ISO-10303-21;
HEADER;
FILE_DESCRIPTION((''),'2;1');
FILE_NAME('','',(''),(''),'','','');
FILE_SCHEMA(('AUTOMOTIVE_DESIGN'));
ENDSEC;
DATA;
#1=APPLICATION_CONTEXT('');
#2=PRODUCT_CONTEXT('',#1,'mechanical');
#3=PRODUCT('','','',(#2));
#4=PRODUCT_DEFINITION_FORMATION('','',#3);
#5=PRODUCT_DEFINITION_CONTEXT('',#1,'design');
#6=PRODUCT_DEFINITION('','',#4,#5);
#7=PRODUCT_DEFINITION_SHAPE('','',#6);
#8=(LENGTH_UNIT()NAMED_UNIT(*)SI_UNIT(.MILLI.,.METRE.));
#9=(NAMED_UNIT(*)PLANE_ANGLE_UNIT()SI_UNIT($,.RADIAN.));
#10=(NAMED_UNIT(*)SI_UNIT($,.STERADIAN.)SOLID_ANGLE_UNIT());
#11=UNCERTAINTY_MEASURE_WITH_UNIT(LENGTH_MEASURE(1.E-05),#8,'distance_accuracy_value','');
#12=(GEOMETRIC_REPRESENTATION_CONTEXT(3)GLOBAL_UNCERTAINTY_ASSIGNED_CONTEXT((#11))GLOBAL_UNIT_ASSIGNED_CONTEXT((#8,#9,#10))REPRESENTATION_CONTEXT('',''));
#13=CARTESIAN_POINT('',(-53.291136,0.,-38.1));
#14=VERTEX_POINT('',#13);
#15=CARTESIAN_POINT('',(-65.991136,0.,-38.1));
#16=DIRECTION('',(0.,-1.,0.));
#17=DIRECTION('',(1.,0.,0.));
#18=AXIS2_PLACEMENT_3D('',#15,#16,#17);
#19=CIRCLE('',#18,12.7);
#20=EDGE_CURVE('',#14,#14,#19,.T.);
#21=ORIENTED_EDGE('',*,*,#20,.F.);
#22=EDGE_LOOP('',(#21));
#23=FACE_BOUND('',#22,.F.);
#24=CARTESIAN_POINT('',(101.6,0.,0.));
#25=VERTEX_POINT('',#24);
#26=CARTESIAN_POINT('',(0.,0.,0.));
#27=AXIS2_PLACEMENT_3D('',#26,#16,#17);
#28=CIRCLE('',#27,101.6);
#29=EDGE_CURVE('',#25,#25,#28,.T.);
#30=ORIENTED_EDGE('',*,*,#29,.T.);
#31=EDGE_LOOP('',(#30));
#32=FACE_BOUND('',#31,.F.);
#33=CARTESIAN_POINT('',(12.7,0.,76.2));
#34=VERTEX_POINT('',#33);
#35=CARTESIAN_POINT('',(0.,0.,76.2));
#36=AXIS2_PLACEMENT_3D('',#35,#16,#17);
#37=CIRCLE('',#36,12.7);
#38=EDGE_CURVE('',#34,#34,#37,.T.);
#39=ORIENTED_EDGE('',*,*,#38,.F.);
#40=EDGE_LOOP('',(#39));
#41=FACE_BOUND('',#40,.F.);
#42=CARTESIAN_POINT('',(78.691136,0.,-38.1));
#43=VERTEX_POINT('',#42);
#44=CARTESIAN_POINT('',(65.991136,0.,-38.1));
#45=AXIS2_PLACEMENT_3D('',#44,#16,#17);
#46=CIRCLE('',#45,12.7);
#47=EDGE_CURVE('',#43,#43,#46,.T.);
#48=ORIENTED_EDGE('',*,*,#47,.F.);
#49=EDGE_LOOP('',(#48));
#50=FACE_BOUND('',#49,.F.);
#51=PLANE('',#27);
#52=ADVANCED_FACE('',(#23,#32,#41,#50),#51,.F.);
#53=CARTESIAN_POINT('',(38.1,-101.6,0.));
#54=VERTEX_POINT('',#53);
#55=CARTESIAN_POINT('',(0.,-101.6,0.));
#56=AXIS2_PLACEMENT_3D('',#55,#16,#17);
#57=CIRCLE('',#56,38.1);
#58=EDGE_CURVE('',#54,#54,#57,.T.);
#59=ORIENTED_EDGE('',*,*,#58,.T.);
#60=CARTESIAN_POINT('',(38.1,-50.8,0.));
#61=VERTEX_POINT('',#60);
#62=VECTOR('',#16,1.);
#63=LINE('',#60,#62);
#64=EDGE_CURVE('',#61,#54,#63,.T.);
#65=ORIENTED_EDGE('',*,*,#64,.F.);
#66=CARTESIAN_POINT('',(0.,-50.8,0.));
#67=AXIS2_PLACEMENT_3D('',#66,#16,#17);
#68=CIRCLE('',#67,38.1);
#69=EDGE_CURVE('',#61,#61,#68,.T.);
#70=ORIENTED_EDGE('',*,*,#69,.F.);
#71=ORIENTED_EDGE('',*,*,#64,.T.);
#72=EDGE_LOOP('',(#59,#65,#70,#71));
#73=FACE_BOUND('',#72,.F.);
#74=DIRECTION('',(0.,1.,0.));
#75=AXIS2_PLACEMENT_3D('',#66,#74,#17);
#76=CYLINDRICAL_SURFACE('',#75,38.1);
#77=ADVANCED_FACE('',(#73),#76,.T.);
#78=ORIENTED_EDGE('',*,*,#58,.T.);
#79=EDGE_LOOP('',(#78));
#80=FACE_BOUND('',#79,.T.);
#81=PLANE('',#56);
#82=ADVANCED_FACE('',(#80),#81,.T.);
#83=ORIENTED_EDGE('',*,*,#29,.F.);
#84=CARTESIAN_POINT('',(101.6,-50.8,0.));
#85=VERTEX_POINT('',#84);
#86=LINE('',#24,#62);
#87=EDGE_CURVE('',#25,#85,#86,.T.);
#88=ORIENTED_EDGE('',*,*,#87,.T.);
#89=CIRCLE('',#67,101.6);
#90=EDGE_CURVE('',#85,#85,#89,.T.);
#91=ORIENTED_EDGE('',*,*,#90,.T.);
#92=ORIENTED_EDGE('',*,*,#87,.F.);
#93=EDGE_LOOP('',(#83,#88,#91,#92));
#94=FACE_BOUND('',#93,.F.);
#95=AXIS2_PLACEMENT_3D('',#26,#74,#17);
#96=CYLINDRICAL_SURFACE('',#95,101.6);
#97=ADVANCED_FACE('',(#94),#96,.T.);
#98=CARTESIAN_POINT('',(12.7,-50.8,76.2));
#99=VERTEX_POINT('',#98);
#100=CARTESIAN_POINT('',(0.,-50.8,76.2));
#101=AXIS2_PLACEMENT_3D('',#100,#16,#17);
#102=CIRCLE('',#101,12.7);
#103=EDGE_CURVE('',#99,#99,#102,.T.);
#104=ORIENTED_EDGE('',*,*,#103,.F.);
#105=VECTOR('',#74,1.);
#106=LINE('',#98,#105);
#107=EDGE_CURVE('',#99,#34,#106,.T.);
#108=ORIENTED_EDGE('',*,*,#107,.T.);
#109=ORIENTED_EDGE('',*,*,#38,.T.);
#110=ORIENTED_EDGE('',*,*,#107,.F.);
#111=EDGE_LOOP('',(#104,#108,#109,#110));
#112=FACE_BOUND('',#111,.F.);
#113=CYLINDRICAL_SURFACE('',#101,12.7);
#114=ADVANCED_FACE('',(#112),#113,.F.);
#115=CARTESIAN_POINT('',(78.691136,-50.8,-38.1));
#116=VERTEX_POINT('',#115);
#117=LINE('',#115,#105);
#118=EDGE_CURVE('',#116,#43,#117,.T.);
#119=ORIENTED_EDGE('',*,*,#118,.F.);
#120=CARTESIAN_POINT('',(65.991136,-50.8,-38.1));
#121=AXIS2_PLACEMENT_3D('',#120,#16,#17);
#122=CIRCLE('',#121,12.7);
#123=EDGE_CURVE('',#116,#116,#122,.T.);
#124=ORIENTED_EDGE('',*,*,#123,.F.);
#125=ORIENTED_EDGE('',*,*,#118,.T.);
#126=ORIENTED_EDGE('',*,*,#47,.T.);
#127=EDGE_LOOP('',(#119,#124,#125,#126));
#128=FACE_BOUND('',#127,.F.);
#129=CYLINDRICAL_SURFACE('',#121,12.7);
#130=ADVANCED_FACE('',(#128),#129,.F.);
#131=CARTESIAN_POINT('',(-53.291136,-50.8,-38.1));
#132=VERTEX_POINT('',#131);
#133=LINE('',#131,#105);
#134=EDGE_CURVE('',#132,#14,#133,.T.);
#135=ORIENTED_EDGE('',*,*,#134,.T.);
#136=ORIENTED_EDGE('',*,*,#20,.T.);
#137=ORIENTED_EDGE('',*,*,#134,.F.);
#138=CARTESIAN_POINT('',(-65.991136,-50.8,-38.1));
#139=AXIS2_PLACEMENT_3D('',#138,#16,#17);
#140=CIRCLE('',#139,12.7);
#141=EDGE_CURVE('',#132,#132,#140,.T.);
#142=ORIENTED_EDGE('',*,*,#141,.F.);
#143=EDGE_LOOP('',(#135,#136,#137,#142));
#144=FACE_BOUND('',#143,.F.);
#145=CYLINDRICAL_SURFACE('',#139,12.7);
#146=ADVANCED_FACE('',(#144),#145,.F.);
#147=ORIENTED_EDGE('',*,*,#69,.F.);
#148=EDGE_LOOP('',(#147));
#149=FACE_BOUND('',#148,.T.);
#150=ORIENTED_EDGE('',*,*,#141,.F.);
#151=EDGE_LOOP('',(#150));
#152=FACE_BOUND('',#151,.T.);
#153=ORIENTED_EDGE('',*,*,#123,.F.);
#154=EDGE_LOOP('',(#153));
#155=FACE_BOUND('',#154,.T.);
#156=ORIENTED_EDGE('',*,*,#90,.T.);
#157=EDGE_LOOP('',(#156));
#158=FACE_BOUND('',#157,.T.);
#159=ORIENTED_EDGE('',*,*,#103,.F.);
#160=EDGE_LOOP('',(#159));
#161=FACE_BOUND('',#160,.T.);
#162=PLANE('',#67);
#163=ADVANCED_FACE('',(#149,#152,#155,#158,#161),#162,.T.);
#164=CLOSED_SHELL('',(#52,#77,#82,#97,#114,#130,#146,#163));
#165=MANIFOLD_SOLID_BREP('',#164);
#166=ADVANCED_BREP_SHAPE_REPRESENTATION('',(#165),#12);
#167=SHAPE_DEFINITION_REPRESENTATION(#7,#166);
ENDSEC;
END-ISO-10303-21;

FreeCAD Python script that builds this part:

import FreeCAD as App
import Part
import Sketcher
Q = App.Units.Quantity

doc = App.newDocument("Part")
body = doc.addObject("PartDesign::Body", "Body")

# Sketch on XZ plane
sketch1 = body.newObject("Sketcher::SketchObject", "Sketch")
sketch1.AttachmentSupport = (doc.getObject("XZ_Plane"), [""])
sketch1.MapMode = "FlatFace"
sketch1.addGeometry(Part.Circle(App.Vector(0, 0, 0), App.Vector(0, 0, 1), 101.6), False)
sketch1.addConstraint(Sketcher.Constraint("Coincident", 0, 3, -1, 1))
sketch1.addConstraint(Sketcher.Constraint("Diameter", 0, Q("8 in")))
pad1 = body.newObject("PartDesign::Pad", "Pad")
pad1.Profile = sketch1
pad1.Length = Q("2 in")

# Sketch on XZ plane
sketch2 = body.newObject("Sketcher::SketchObject", "Sketch001")
sketch2.AttachmentSupport = (doc.getObject("XZ_Plane"), [""])
sketch2.MapMode = "FlatFace"
sketch2.AttachmentOffset = App.Placement(App.Vector(0, 0, 2 * 25.4), App.Rotation())
sketch2.addGeometry(Part.Circle(App.Vector(0, 0, 0), App.Vector(0, 0, 1), 38.1), False)
sketch2.addConstraint(Sketcher.Constraint("Coincident", 0, 3, -1, 1))
sketch2.addConstraint(Sketcher.Constraint("Diameter", 0, Q("3 in")))
pad2 = body.newObject("PartDesign::Pad", "Pad001")
pad2.Profile = sketch2
pad2.Length = Q("2 in")

# Sketch on XZ plane
sketch3 = body.newObject("Sketcher::SketchObject", "Sketch002")
sketch3.AttachmentSupport = (doc.getObject("XZ_Plane"), [""])
sketch3.MapMode = "FlatFace"
sketch3.AttachmentOffset = App.Placement(App.Vector(0, 0, 2 * 25.4), App.Rotation())
sketch3.addGeometry(Part.Circle(App.Vector(0, 76.2, 0), App.Vector(0, 0, 1), 12.7), False)
sketch3.addGeometry(Part.Circle(App.Vector(-65.991136, -38.1, 0), App.Vector(0, 0, 1), 12.7), False)
sketch3.addGeometry(Part.Circle(App.Vector(65.991136, -38.1, 0), App.Vector(0, 0, 1), 12.7), False)
sketch3.addConstraint(Sketcher.Constraint("Equal", 0, 1))
sketch3.addConstraint(Sketcher.Constraint("Equal", 1, 2))
sketch3.addConstraint(Sketcher.Constraint("Symmetric", 1, 3, 2, 3, -2))
sketch3.addConstraint(Sketcher.Constraint("PointOnObject", 0, 3, -2))
sketch3.addConstraint(Sketcher.Constraint("Diameter", 0, Q("1 in")))
sketch3.addConstraint(Sketcher.Constraint("DistanceY", -1, 1, 0, 3, Q("3 in")))
sketch3.addConstraint(Sketcher.Constraint("DistanceY", 1, 3, -1, 1, Q("1.5 in")))
sketch3.addConstraint(Sketcher.Constraint("DistanceX", 1, 3, 2, 3, 131.982272))
pocket1 = body.newObject("PartDesign::Pocket", "Pocket")
pocket1.Profile = sketch3
pocket1.Length = Q("3.44 in")

doc.recompute()
